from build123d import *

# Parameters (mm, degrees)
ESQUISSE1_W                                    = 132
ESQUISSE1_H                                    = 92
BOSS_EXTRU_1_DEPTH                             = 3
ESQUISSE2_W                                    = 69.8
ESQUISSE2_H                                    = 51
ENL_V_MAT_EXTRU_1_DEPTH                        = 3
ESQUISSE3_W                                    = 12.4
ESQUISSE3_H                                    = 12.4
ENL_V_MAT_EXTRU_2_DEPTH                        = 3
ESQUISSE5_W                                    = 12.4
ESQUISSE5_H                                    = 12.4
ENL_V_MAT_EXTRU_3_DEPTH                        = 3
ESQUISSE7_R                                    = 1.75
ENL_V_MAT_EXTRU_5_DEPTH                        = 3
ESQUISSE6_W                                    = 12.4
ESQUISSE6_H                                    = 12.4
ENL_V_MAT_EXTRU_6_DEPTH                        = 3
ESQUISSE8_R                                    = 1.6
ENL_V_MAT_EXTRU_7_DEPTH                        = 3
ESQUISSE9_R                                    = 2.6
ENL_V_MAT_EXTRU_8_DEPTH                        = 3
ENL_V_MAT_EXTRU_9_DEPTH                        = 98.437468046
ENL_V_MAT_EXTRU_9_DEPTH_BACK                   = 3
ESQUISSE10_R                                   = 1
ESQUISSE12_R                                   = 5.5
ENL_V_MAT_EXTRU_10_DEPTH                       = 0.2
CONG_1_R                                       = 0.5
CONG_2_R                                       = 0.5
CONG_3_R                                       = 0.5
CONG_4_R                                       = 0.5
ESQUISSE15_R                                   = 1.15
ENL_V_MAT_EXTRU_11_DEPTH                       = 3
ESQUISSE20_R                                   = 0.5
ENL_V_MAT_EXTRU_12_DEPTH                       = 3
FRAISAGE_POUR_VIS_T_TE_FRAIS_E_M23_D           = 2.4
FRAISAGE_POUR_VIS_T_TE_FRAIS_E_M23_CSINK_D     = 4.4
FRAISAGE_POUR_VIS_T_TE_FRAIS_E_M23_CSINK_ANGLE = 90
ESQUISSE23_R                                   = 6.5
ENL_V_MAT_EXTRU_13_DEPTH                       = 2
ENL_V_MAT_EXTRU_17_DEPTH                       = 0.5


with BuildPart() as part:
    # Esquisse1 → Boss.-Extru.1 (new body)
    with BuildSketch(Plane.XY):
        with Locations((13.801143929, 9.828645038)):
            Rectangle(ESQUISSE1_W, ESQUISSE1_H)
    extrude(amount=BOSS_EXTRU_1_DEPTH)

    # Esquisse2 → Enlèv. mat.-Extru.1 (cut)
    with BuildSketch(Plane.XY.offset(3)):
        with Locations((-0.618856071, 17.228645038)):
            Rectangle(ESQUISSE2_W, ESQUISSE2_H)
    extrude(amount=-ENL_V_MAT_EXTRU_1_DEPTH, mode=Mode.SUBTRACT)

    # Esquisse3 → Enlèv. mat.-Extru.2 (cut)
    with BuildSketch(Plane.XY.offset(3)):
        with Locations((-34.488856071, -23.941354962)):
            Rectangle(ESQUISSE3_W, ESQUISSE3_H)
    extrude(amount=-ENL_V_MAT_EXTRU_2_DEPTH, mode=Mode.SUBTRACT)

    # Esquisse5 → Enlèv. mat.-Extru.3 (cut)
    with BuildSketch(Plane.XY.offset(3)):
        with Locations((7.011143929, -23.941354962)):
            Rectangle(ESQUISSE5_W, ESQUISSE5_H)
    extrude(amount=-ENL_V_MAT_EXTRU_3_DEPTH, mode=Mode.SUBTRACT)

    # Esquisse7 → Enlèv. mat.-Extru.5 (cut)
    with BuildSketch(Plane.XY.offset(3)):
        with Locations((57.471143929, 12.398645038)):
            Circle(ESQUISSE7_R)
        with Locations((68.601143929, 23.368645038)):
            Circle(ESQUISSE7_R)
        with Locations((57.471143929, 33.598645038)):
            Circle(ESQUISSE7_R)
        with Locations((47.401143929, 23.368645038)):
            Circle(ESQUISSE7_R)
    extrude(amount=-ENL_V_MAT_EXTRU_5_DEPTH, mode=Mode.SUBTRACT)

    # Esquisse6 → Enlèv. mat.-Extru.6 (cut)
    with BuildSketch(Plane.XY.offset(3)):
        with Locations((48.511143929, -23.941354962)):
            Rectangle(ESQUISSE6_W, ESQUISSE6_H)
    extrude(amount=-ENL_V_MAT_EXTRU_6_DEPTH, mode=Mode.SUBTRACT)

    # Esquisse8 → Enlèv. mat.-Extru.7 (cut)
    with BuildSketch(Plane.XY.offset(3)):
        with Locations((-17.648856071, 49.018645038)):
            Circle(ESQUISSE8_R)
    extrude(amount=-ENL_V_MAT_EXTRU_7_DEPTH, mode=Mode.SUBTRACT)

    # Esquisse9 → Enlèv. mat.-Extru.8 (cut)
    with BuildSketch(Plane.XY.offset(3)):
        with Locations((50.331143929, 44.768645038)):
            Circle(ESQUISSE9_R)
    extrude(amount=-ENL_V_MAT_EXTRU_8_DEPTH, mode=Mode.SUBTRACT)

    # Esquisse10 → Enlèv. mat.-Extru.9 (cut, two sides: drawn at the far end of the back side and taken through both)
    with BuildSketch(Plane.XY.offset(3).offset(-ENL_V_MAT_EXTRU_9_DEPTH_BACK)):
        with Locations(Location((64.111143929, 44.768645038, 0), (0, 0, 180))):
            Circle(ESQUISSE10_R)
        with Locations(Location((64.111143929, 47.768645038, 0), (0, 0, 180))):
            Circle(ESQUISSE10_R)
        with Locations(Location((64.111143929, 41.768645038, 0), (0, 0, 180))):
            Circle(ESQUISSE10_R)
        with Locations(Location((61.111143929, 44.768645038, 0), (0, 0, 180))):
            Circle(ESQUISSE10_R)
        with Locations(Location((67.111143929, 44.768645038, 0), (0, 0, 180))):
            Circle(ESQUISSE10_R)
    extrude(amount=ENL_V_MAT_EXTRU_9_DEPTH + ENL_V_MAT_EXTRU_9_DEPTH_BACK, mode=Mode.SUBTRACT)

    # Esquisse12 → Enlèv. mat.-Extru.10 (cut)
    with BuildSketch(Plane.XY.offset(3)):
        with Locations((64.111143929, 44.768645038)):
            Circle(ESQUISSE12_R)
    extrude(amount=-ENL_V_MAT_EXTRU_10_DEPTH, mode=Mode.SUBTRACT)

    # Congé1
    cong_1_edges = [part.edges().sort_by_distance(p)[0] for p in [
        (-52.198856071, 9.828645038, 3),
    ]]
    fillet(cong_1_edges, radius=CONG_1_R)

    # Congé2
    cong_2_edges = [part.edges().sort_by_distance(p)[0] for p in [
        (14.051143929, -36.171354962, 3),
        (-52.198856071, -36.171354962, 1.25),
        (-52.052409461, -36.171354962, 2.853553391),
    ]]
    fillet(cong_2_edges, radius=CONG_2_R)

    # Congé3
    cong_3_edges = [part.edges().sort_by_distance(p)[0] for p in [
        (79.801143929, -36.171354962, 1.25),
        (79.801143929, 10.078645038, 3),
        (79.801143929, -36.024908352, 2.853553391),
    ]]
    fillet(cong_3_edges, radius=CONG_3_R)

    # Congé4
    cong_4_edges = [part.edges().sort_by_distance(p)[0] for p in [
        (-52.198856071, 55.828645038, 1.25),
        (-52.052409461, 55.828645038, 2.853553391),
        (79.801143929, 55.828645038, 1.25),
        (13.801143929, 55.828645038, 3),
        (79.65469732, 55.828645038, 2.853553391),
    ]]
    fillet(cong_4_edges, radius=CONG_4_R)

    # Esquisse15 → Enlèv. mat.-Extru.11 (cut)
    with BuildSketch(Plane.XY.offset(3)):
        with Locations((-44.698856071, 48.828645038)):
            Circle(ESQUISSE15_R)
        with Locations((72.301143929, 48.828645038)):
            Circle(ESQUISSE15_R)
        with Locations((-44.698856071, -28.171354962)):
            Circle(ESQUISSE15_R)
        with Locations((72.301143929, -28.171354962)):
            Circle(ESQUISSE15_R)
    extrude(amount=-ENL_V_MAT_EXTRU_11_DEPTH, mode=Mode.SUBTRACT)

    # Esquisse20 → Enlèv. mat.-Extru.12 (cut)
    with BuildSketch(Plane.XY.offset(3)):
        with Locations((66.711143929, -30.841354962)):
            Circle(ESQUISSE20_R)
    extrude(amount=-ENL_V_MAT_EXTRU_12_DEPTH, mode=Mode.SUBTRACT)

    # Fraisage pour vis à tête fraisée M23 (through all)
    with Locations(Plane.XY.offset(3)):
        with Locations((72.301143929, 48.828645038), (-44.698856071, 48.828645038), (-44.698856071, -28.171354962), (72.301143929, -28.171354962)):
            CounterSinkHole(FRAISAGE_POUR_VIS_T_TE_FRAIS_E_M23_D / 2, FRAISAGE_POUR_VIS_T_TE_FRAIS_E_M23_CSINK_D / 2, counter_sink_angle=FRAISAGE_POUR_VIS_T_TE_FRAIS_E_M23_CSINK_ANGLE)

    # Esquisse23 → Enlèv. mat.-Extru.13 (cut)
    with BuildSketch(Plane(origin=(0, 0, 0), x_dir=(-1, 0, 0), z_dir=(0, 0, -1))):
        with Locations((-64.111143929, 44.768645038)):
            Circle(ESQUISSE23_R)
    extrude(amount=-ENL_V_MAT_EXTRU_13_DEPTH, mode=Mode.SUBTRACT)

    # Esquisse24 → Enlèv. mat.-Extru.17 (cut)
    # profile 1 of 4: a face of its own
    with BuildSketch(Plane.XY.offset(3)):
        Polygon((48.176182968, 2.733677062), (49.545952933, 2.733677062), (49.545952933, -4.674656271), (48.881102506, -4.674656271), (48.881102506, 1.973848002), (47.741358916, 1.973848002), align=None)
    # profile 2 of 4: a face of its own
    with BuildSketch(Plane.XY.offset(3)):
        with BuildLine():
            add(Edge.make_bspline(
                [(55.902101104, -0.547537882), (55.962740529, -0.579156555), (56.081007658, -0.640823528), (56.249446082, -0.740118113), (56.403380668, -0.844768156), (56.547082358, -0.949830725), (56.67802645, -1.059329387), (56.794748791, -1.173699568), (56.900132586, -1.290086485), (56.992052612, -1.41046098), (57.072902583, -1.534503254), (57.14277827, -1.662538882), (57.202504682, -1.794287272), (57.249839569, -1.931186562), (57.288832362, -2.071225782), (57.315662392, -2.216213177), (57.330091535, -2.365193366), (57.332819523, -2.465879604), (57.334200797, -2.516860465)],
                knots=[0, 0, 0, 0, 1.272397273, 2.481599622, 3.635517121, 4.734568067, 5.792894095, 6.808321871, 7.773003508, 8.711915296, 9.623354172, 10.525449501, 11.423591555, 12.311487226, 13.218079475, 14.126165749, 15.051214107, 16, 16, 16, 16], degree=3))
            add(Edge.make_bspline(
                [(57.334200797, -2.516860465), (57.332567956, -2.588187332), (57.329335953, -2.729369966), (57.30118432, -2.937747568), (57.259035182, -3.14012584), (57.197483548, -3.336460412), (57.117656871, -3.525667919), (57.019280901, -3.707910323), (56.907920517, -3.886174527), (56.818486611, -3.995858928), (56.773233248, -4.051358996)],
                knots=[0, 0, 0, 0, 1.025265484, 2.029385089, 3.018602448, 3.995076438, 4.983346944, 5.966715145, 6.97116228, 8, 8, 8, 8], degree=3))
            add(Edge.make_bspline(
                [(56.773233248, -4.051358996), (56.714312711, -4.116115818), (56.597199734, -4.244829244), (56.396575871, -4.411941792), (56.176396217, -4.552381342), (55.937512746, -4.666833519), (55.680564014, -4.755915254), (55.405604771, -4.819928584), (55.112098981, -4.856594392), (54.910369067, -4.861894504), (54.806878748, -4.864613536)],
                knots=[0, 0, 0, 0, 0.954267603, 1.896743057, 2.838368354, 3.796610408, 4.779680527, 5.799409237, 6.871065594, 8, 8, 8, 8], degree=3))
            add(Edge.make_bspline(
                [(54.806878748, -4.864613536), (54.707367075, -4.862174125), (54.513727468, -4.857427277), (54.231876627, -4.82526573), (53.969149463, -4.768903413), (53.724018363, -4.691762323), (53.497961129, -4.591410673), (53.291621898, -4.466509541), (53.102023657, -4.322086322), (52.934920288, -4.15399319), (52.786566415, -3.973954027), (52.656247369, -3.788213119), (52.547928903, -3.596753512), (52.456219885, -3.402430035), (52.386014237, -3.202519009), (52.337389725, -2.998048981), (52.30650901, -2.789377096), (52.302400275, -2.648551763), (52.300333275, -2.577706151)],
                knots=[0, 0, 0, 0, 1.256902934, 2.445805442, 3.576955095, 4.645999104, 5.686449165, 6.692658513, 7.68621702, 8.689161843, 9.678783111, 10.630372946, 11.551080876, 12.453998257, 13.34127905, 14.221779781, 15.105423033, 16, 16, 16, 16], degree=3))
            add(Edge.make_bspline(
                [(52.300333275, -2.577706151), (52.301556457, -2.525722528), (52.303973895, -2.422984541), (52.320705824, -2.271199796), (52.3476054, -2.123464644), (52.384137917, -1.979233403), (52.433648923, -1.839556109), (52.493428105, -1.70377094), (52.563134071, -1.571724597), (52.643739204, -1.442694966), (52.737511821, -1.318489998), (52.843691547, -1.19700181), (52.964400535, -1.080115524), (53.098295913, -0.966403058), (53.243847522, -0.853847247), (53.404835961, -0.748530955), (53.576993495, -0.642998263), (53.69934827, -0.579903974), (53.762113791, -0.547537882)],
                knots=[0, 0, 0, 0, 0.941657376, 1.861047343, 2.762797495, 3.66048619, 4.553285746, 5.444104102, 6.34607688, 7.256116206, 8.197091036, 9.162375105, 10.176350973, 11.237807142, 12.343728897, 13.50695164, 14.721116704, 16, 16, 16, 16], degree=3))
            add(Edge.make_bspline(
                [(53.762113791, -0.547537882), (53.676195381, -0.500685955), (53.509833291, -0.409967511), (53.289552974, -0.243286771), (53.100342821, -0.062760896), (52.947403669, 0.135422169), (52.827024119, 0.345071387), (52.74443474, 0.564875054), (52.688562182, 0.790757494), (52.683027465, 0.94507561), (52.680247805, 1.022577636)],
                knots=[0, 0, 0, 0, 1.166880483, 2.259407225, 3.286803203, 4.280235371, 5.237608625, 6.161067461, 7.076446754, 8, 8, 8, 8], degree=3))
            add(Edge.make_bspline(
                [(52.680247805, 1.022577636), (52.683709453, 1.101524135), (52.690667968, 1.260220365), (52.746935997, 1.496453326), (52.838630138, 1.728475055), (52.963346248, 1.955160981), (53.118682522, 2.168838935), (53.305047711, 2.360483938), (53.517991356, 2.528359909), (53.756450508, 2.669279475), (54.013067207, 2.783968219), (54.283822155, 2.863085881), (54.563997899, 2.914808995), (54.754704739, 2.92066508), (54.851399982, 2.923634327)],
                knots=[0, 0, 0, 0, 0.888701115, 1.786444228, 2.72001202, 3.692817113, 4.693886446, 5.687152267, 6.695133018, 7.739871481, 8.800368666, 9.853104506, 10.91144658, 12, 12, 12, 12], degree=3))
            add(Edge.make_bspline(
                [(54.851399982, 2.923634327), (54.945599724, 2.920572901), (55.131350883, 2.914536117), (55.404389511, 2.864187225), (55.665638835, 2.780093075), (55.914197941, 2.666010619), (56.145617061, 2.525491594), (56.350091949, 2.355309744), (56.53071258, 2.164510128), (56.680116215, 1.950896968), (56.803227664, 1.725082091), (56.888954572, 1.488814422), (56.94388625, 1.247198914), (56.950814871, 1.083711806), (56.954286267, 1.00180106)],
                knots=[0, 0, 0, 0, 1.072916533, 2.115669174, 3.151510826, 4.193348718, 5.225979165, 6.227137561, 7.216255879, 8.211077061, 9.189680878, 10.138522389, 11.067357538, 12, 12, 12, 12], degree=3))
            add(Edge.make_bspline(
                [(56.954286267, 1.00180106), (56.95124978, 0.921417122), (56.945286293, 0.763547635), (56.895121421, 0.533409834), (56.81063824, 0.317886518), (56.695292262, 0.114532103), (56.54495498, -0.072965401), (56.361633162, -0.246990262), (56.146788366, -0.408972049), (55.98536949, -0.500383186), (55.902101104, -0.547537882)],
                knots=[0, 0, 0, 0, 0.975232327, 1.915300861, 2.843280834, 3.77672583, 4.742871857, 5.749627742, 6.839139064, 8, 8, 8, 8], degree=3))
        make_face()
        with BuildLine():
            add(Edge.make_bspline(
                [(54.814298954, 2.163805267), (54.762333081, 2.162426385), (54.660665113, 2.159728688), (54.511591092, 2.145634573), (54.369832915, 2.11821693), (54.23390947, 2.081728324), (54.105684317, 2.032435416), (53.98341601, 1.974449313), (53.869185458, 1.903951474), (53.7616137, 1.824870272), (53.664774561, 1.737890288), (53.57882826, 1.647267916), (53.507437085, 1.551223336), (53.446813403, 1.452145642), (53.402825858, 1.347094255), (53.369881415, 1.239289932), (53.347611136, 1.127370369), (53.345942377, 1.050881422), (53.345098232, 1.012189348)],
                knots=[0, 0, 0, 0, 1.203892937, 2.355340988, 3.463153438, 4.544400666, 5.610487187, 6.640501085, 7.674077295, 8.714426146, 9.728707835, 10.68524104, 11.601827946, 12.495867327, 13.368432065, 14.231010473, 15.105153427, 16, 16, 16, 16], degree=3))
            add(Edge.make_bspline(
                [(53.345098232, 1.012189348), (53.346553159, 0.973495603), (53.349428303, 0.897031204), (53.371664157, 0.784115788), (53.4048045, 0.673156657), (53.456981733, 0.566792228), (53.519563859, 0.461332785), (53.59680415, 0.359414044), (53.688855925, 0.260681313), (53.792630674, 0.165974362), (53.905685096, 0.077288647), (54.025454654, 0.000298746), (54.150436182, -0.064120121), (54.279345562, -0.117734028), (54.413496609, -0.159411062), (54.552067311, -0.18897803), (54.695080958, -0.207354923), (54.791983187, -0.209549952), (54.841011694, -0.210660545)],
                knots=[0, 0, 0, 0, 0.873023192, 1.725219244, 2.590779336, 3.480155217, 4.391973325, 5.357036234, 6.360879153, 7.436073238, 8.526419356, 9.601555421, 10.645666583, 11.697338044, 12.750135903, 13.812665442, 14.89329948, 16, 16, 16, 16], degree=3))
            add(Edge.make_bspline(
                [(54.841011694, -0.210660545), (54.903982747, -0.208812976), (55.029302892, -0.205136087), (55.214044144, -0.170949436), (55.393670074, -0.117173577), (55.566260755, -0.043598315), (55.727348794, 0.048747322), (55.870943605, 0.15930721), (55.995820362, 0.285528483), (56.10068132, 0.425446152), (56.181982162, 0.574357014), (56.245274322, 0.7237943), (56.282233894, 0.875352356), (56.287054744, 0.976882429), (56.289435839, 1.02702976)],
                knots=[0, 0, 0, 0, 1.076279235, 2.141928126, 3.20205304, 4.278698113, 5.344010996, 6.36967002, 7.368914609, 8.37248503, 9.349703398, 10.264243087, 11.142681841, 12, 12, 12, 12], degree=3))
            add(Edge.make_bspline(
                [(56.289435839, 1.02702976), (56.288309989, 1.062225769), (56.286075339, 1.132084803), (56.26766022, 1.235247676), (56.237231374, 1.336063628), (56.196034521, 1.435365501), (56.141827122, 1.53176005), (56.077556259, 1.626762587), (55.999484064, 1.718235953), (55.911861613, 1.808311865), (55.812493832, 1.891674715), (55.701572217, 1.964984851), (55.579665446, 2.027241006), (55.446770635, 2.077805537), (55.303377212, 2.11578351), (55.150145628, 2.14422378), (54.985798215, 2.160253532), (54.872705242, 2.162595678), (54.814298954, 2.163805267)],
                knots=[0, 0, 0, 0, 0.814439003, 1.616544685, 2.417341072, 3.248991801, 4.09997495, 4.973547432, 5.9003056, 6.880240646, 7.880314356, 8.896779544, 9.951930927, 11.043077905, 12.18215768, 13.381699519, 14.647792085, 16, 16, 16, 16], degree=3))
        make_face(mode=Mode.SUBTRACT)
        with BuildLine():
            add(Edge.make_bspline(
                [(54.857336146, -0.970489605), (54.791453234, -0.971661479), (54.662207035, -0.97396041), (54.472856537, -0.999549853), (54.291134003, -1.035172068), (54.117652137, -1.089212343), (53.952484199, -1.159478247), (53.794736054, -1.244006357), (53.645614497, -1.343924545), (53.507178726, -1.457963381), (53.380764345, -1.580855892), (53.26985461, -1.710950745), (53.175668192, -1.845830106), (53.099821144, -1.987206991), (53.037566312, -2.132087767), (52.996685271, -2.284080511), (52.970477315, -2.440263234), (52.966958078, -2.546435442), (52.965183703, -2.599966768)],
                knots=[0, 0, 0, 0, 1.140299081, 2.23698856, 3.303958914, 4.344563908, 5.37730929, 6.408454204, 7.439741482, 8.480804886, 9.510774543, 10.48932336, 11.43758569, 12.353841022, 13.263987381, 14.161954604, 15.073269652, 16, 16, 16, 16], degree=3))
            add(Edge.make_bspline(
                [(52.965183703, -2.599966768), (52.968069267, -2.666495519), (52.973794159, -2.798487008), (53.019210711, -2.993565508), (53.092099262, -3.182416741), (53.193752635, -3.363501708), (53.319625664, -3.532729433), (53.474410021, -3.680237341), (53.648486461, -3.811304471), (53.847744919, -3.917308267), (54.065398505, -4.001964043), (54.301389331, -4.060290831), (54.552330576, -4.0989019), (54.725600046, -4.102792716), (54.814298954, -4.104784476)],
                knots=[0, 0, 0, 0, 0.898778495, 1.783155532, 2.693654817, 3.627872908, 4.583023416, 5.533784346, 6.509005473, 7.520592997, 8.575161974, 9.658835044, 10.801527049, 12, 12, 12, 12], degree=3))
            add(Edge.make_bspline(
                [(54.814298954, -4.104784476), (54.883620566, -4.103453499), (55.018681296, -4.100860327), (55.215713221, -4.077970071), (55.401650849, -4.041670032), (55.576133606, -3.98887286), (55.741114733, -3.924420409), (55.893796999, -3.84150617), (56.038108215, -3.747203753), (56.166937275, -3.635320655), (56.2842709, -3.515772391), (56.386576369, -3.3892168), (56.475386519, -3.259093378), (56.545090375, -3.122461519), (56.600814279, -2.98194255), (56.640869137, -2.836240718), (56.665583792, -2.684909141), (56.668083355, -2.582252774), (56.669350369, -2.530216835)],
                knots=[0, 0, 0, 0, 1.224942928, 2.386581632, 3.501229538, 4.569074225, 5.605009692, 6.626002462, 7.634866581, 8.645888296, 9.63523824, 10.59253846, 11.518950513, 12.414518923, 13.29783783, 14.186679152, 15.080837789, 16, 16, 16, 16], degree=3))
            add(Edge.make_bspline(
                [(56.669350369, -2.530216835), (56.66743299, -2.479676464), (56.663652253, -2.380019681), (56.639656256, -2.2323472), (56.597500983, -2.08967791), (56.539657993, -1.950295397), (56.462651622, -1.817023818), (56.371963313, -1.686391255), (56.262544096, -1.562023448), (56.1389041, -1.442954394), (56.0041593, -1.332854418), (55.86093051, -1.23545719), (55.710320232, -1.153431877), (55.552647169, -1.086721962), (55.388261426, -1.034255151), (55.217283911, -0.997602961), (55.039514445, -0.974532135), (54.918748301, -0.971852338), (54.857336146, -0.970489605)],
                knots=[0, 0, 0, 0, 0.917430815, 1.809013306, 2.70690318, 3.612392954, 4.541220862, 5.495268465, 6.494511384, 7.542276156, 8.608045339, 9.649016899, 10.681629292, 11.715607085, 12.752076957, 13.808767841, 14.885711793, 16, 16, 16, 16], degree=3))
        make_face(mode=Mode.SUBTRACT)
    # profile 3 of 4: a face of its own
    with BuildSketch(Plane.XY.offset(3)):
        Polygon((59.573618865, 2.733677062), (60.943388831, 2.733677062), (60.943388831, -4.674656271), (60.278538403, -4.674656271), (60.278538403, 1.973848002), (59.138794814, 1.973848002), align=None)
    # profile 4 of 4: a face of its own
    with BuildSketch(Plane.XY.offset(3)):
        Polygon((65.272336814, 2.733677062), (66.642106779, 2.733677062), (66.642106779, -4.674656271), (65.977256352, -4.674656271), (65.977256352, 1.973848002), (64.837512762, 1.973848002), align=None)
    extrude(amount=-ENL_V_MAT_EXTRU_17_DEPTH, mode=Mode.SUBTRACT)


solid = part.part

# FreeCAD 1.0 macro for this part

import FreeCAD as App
import Part
import Sketcher

V = App.Vector


def edges_at(feature, points):
    """Names of the edges that pass closest to the given points."""
    edges = feature.Shape.Edges
    near = lambda p: min(range(len(edges)), key=lambda i: edges[i].distToShape(Part.Vertex(*p))[0])
    return sorted({f"Edge{near(p) + 1}" for p in points})


def add_polygon(sketch, points):
    """Adds a closed chain of lines whose ends are joined by coincident constraints."""
    first, n = sketch.GeometryCount, len(points)
    for a, b in zip(points, points[1:] + points[:1]):
        sketch.addGeometry(Part.LineSegment(App.Vector(*a, 0), App.Vector(*b, 0)), False)
    for i in range(n):
        sketch.addConstraint(Sketcher.Constraint("Coincident", first + i, 2, first + (i + 1) % n, 1))

doc = App.newDocument("Part")
params = doc.addObject("Spreadsheet::Sheet", "Params")
for row, (alias, value) in enumerate([
    ("sketch1_width", "132 mm"),
    ("sketch1_height", "92 mm"),
    ("pad1_length", "3 mm"),
    ("sketch2_height", "51 mm"),
    ("sketch2_width", "69.8 mm"),
    ("pocket1_length", "3 mm"),
    ("sketch3_width", "12.4 mm"),
    ("pocket2_length", "3 mm"),
    ("sketch4_width", "12.4 mm"),
    ("pocket3_length", "3 mm"),
    ("sketch5_diameter", "3.5 mm"),
    ("pocket4_length", "3 mm"),
    ("sketch6_width", "12.4 mm"),
    ("pocket5_length", "3 mm"),
    ("sketch7_diameter", "3.2 mm"),
    ("pocket6_length", "3 mm"),
    ("sketch8_diameter", "5.2 mm"),
    ("pocket7_length", "3 mm"),
    ("sketch9_diameter", "2 mm"),
    ("sketch10_diameter", "11 mm"),
    ("pocket9_length", "0.2 mm"),
    ("fillet_radius", "0.5 mm"),
    ("fillet2_radius", "0.5 mm"),
    ("fillet3_radius", "0.5 mm"),
    ("fillet4_radius", "0.5 mm"),
    ("sketch11_diameter", "2.3 mm"),
    ("pocket10_length", "3 mm"),
    ("sketch12_diameter", "1 mm"),
    ("pocket11_length", "3 mm"),
    ("sketch13_diameter", "2.4 mm"),
    ("hole_diameter", "2.4 mm"),
    ("hole_csink_diameter", "4.4 mm"),
    ("sketch14_diameter", "13 mm"),
    ("pocket12_length", "2 mm"),
    ("pocket13_length", "0.5 mm"),
], start=1):
    params.set(f"A{row}", alias)
    params.set(f"B{row}", "=" + value)
    params.setAlias(f"B{row}", alias)

body = doc.addObject("PartDesign::Body", "Body")

sketch1 = body.newObject("Sketcher::SketchObject", "Sketch")
sketch1.AttachmentSupport = (doc.getObject("XY_Plane"), [""])
sketch1.MapMode = "FlatFace"
add_polygon(sketch1, [(-52, 56), (-52, -36), (80, -36), (80, 56)])
sketch1.addConstraint(Sketcher.Constraint("Vertical", 0))
sketch1.addConstraint(Sketcher.Constraint("Horizontal", 1))
sketch1.addConstraint(Sketcher.Constraint("Vertical", 2))
sketch1.addConstraint(Sketcher.Constraint("Horizontal", 3))
sketch1.addConstraint(Sketcher.Constraint("DistanceX", 1, 1, 1, 2, 132.0))
sketch1.addConstraint(Sketcher.Constraint("DistanceY", 0, 2, 0, 1, 92.0))
sketch1.addConstraint(Sketcher.Constraint("DistanceX", 0, 2, -1, 1, 52.198856))
sketch1.addConstraint(Sketcher.Constraint("DistanceY", 0, 2, -1, 1, 36.171355))
sketch1.setExpression("Constraints[8]", "Params.sketch1_width")
sketch1.setExpression("Constraints[9]", "Params.sketch1_height")
pad1 = body.newObject("PartDesign::Pad", "Pad")
pad1.Profile = sketch1
pad1.setExpression("Length", "Params.pad1_length")

sketch2 = body.newObject("Sketcher::SketchObject", "Sketch001")
sketch2.AttachmentSupport = (doc.getObject("XY_Plane"), [""])
sketch2.MapMode = "FlatFace"
sketch2.AttachmentOffset = App.Placement(V(0, 0, 3), App.Rotation())
add_polygon(sketch2, [(-36, 43), (-36, -8), (34, -8), (34, 43)])
sketch2.addConstraint(Sketcher.Constraint("Vertical", 0))
sketch2.addConstraint(Sketcher.Constraint("Horizontal", 1))
sketch2.addConstraint(Sketcher.Constraint("Vertical", 2))
sketch2.addConstraint(Sketcher.Constraint("Horizontal", 3))
sketch2.addConstraint(Sketcher.Constraint("DistanceY", 0, 2, 0, 1, 51.0))
sketch2.addConstraint(Sketcher.Constraint("DistanceX", 1, 1, 1, 2, 69.8))
sketch2.addConstraint(Sketcher.Constraint("DistanceX", 0, 2, -1, 1, 35.518856))
sketch2.addConstraint(Sketcher.Constraint("DistanceY", 0, 2, -1, 1, 8.271355))
sketch2.setExpression("Constraints[8]", "Params.sketch2_height")
sketch2.setExpression("Constraints[9]", "Params.sketch2_width")
pocket1 = body.newObject("PartDesign::Pocket", "Pocket")
pocket1.Profile = sketch2
pocket1.setExpression("Length", "Params.pocket1_length")

sketch3 = body.newObject("Sketcher::SketchObject", "Sketch002")
sketch3.AttachmentSupport = (doc.getObject("XY_Plane"), [""])
sketch3.MapMode = "FlatFace"
sketch3.AttachmentOffset = App.Placement(V(0, 0, 3), App.Rotation())
add_polygon(sketch3, [(-41, -18), (-41, -30), (-28, -30), (-28, -18)])
sketch3.addConstraint(Sketcher.Constraint("Vertical", 0))
sketch3.addConstraint(Sketcher.Constraint("Horizontal", 1))
sketch3.addConstraint(Sketcher.Constraint("Vertical", 2))
sketch3.addConstraint(Sketcher.Constraint("Horizontal", 3))
sketch3.addConstraint(Sketcher.Constraint("Equal", 3, 0))
sketch3.addConstraint(Sketcher.Constraint("DistanceX", 1, 1, 1, 2, 12.4))
sketch3.addConstraint(Sketcher.Constraint("DistanceX", 0, 2, -1, 1, 40.688856))
sketch3.addConstraint(Sketcher.Constraint("DistanceY", 0, 2, -1, 1, 30.141355))
sketch3.setExpression("Constraints[9]", "Params.sketch3_width")
pocket2 = body.newObject("PartDesign::Pocket", "Pocket001")
pocket2.Profile = sketch3
pocket2.setExpression("Length", "Params.pocket2_length")

sketch4 = body.newObject("Sketcher::SketchObject", "Sketch003")
sketch4.AttachmentSupport = (doc.getObject("XY_Plane"), [""])
sketch4.MapMode = "FlatFace"
sketch4.AttachmentOffset = App.Placement(V(0, 0, 3), App.Rotation())
add_polygon(sketch4, [(1, -18), (1, -30), (13, -30), (13, -18)])
sketch4.addConstraint(Sketcher.Constraint("Vertical", 0))
sketch4.addConstraint(Sketcher.Constraint("Horizontal", 1))
sketch4.addConstraint(Sketcher.Constraint("Vertical", 2))
sketch4.addConstraint(Sketcher.Constraint("Horizontal", 3))
sketch4.addConstraint(Sketcher.Constraint("Equal", 3, 0))
sketch4.addConstraint(Sketcher.Constraint("DistanceX", 1, 1, 1, 2, 12.4))
sketch4.addConstraint(Sketcher.Constraint("DistanceX", -1, 1, 0, 2, 0.811144))
sketch4.addConstraint(Sketcher.Constraint("DistanceY", 0, 2, -1, 1, 30.141355))
sketch4.setExpression("Constraints[9]", "Params.sketch4_width")
pocket3 = body.newObject("PartDesign::Pocket", "Pocket002")
pocket3.Profile = sketch4
pocket3.setExpression("Length", "Params.pocket3_length")

sketch5 = body.newObject("Sketcher::SketchObject", "Sketch004")
sketch5.AttachmentSupport = (doc.getObject("XY_Plane"), [""])
sketch5.MapMode = "FlatFace"
sketch5.AttachmentOffset = App.Placement(V(0, 0, 3), App.Rotation())
sketch5.addGeometry(Part.Circle(V(57.5, 12.4, 0), V(0, 0, 1), 1.8), False)
sketch5.addGeometry(Part.Circle(V(68.6, 23.4, 0), V(0, 0, 1), 1.8), False)
sketch5.addGeometry(Part.Circle(V(57.5, 33.6, 0), V(0, 0, 1), 1.8), False)
sketch5.addGeometry(Part.Circle(V(47.4, 23.4, 0), V(0, 0, 1), 1.8), False)
sketch5.addConstraint(Sketcher.Constraint("Equal", 0, 1))
sketch5.addConstraint(Sketcher.Constraint("Equal", 1, 2))
sketch5.addConstraint(Sketcher.Constraint("Equal", 2, 3))
sketch5.addConstraint(Sketcher.Constraint("Horizontal", 1, 3, 3, 3))
sketch5.addConstraint(Sketcher.Constraint("Vertical", 0, 3, 2, 3))
sketch5.addConstraint(Sketcher.Constraint("Diameter", 0, 3.5))
sketch5.addConstraint(Sketcher.Constraint("DistanceY", 0, 3, 2, 3, 21.2))
sketch5.addConstraint(Sketcher.Constraint("DistanceX", 3, 3, 1, 3, 21.2))
sketch5.addConstraint(Sketcher.Constraint("DistanceX", 0, 3, 1, 3, 11.13))
sketch5.addConstraint(Sketcher.Constraint("DistanceY", 0, 3, 1, 3, 10.97))
sketch5.addConstraint(Sketcher.Constraint("DistanceX", -1, 1, 0, 3, 57.471144))
sketch5.addConstraint(Sketcher.Constraint("DistanceY", -1, 1, 0, 3, 12.398645))
sketch5.setExpression("Constraints[5]", "Params.sketch5_diameter")
pocket4 = body.newObject("PartDesign::Pocket", "Pocket003")
pocket4.Profile = sketch5
pocket4.setExpression("Length", "Params.pocket4_length")

sketch6 = body.newObject("Sketcher::SketchObject", "Sketch005")
sketch6.AttachmentSupport = (doc.getObject("XY_Plane"), [""])
sketch6.MapMode = "FlatFace"
sketch6.AttachmentOffset = App.Placement(V(0, 0, 3), App.Rotation())
add_polygon(sketch6, [(42, -18), (42, -30), (55, -30), (55, -18)])
sketch6.addConstraint(Sketcher.Constraint("Vertical", 0))
sketch6.addConstraint(Sketcher.Constraint("Horizontal", 1))
sketch6.addConstraint(Sketcher.Constraint("Vertical", 2))
sketch6.addConstraint(Sketcher.Constraint("Horizontal", 3))
sketch6.addConstraint(Sketcher.Constraint("Equal", 3, 0))
sketch6.addConstraint(Sketcher.Constraint("DistanceX", 1, 1, 1, 2, 12.4))
sketch6.addConstraint(Sketcher.Constraint("DistanceX", -1, 1, 0, 2, 42.311144))
sketch6.addConstraint(Sketcher.Constraint("DistanceY", 0, 2, -1, 1, 30.141355))
sketch6.setExpression("Constraints[9]", "Params.sketch6_width")
pocket5 = body.newObject("PartDesign::Pocket", "Pocket004")
pocket5.Profile = sketch6
pocket5.setExpression("Length", "Params.pocket5_length")

sketch7 = body.newObject("Sketcher::SketchObject", "Sketch006")
sketch7.AttachmentSupport = (doc.getObject("XY_Plane"), [""])
sketch7.MapMode = "FlatFace"
sketch7.AttachmentOffset = App.Placement(V(0, 0, 3), App.Rotation())
sketch7.addGeometry(Part.Circle(V(-17.6, 49, 0), V(0, 0, 1), 1.6), False)
sketch7.addConstraint(Sketcher.Constraint("Diameter", 0, 3.2))
sketch7.addConstraint(Sketcher.Constraint("DistanceX", 0, 3, -1, 1, 17.648856))
sketch7.addConstraint(Sketcher.Constraint("DistanceY", -1, 1, 0, 3, 49.018645))
sketch7.setExpression("Constraints[0]", "Params.sketch7_diameter")
pocket6 = body.newObject("PartDesign::Pocket", "Pocket005")
pocket6.Profile = sketch7
pocket6.setExpression("Length", "Params.pocket6_length")

sketch8 = body.newObject("Sketcher::SketchObject", "Sketch007")
sketch8.AttachmentSupport = (doc.getObject("XY_Plane"), [""])
sketch8.MapMode = "FlatFace"
sketch8.AttachmentOffset = App.Placement(V(0, 0, 3), App.Rotation())
sketch8.addGeometry(Part.Circle(V(50.3, 44.8, 0), V(0, 0, 1), 2.6), False)
sketch8.addConstraint(Sketcher.Constraint("Diameter", 0, 5.2))
sketch8.addConstraint(Sketcher.Constraint("DistanceX", -1, 1, 0, 3, 50.331144))
sketch8.addConstraint(Sketcher.Constraint("DistanceY", -1, 1, 0, 3, 44.768645))
sketch8.setExpression("Constraints[0]", "Params.sketch8_diameter")
pocket7 = body.newObject("PartDesign::Pocket", "Pocket006")
pocket7.Profile = sketch8
pocket7.setExpression("Length", "Params.pocket7_length")

sketch9 = body.newObject("Sketcher::SketchObject", "Sketch008")
sketch9.AttachmentSupport = (doc.getObject("XY_Plane"), [""])
sketch9.MapMode = "FlatFace"
sketch9.AttachmentOffset = App.Placement(V(0, 0, 3), App.Rotation())
sketch9.addGeometry(Part.Circle(V(64.1, 44.8, 0), V(0, 0, 1), 1), False)
sketch9.addGeometry(Part.Circle(V(64.1, 47.8, 0), V(0, 0, 1), 1), False)
sketch9.addGeometry(Part.Circle(V(64.1, 41.8, 0), V(0, 0, 1), 1), False)
sketch9.addGeometry(Part.Circle(V(61.1, 44.8, 0), V(0, 0, 1), 1), False)
sketch9.addGeometry(Part.Circle(V(67.1, 44.8, 0), V(0, 0, 1), 1), False)
sketch9.addConstraint(Sketcher.Constraint("Equal", 0, 1))
sketch9.addConstraint(Sketcher.Constraint("Equal", 1, 2))
sketch9.addConstraint(Sketcher.Constraint("Equal", 2, 3))
sketch9.addConstraint(Sketcher.Constraint("Equal", 3, 4))
sketch9.addConstraint(Sketcher.Constraint("Horizontal", 0, 3, 3, 3))
sketch9.addConstraint(Sketcher.Constraint("Horizontal", 3, 3, 4, 3))
sketch9.addConstraint(Sketcher.Constraint("Vertical", 0, 3, 1, 3))
sketch9.addConstraint(Sketcher.Constraint("Vertical", 1, 3, 2, 3))
sketch9.addConstraint(Sketcher.Constraint("Diameter", 0, 2.0))
sketch9.addConstraint(Sketcher.Constraint("DistanceY", 0, 3, 1, 3, 3.0))
sketch9.addConstraint(Sketcher.Constraint("DistanceY", 2, 3, 0, 3, 3.0))
sketch9.addConstraint(Sketcher.Constraint("DistanceX", 3, 3, 0, 3, 3.0))
sketch9.addConstraint(Sketcher.Constraint("DistanceX", 0, 3, 4, 3, 3.0))
sketch9.addConstraint(Sketcher.Constraint("DistanceX", -1, 1, 0, 3, 64.111144))
sketch9.addConstraint(Sketcher.Constraint("DistanceY", -1, 1, 0, 3, 44.768645))
sketch9.setExpression("Constraints[8]", "Params.sketch9_diameter")
pocket8 = body.newObject("PartDesign::Pocket", "Pocket007")
pocket8.Profile = sketch9
pocket8.Type = "ThroughAll"
pocket8.Midplane = True

sketch10 = body.newObject("Sketcher::SketchObject", "Sketch009")
sketch10.AttachmentSupport = (doc.getObject("XY_Plane"), [""])
sketch10.MapMode = "FlatFace"
sketch10.AttachmentOffset = App.Placement(V(0, 0, 3), App.Rotation())
sketch10.addGeometry(Part.Circle(V(64, 45, 0), V(0, 0, 1), 6), False)
sketch10.addConstraint(Sketcher.Constraint("Diameter", 0, 11.0))
sketch10.addConstraint(Sketcher.Constraint("DistanceX", -1, 1, 0, 3, 64.111144))
sketch10.addConstraint(Sketcher.Constraint("DistanceY", -1, 1, 0, 3, 44.768645))
sketch10.setExpression("Constraints[0]", "Params.sketch10_diameter")
pocket9 = body.newObject("PartDesign::Pocket", "Pocket008")
pocket9.Profile = sketch10
pocket9.setExpression("Length", "Params.pocket9_length")
doc.recompute()

fillet = body.newObject("PartDesign::Fillet", "Fillet")
fillet.Base = (pocket9, edges_at(pocket9, [(-52.199, 9.829, 3)]))
fillet.setExpression("Radius", "Params.fillet_radius")
doc.recompute()

fillet2 = body.newObject("PartDesign::Fillet", "Fillet001")
fillet2.Base = (fillet, edges_at(fillet, [(14.051, -36.171, 3), (-52.199, -36.171, 1.25), (-52.052, -36.171, 2.854)]))
fillet2.setExpression("Radius", "Params.fillet2_radius")
doc.recompute()

fillet3 = body.newObject("PartDesign::Fillet", "Fillet002")
fillet3.Base = (fillet2, edges_at(fillet2, [(79.801, -36.171, 1.25), (79.801, 10.079, 3), (79.801, -36.025, 2.854)]))
fillet3.setExpression("Radius", "Params.fillet3_radius")
doc.recompute()

fillet4 = body.newObject("PartDesign::Fillet", "Fillet003")
fillet4.Base = (fillet3, edges_at(fillet3, [
    (-52.199, 55.829, 1.25),
    (-52.052, 55.829, 2.854),
    (79.801, 55.829, 1.25),
    (13.801, 55.829, 3),
    (79.655, 55.829, 2.854),
]))
fillet4.setExpression("Radius", "Params.fillet4_radius")

sketch11 = body.newObject("Sketcher::SketchObject", "Sketch010")
sketch11.AttachmentSupport = (doc.getObject("XY_Plane"), [""])
sketch11.MapMode = "FlatFace"
sketch11.AttachmentOffset = App.Placement(V(0, 0, 3), App.Rotation())
sketch11.addGeometry(Part.Circle(V(-44.7, 48.8, 0), V(0, 0, 1), 1.1), False)
sketch11.addGeometry(Part.Circle(V(72.3, 48.8, 0), V(0, 0, 1), 1.1), False)
sketch11.addGeometry(Part.Circle(V(-44.7, -28.2, 0), V(0, 0, 1), 1.1), False)
sketch11.addGeometry(Part.Circle(V(72.3, -28.2, 0), V(0, 0, 1), 1.1), False)
sketch11.addConstraint(Sketcher.Constraint("Equal", 0, 1))
sketch11.addConstraint(Sketcher.Constraint("Equal", 1, 2))
sketch11.addConstraint(Sketcher.Constraint("Equal", 2, 3))
sketch11.addConstraint(Sketcher.Constraint("Horizontal", 0, 3, 1, 3))
sketch11.addConstraint(Sketcher.Constraint("Horizontal", 2, 3, 3, 3))
sketch11.addConstraint(Sketcher.Constraint("Vertical", 0, 3, 2, 3))
sketch11.addConstraint(Sketcher.Constraint("Vertical", 1, 3, 3, 3))
sketch11.addConstraint(Sketcher.Constraint("Diameter", 0, 2.3))
sketch11.addConstraint(Sketcher.Constraint("DistanceX", 0, 3, 1, 3, 117.0))
sketch11.addConstraint(Sketcher.Constraint("DistanceY", 2, 3, 0, 3, 77.0))
sketch11.addConstraint(Sketcher.Constraint("DistanceX", 0, 3, -1, 1, 44.698856))
sketch11.addConstraint(Sketcher.Constraint("DistanceY", -1, 1, 0, 3, 48.828645))
sketch11.setExpression("Constraints[7]", "Params.sketch11_diameter")
pocket10 = body.newObject("PartDesign::Pocket", "Pocket009")
pocket10.Profile = sketch11
pocket10.setExpression("Length", "Params.pocket10_length")

sketch12 = body.newObject("Sketcher::SketchObject", "Sketch011")
sketch12.AttachmentSupport = (doc.getObject("XY_Plane"), [""])
sketch12.MapMode = "FlatFace"
sketch12.AttachmentOffset = App.Placement(V(0, 0, 3), App.Rotation())
sketch12.addGeometry(Part.Circle(V(66.7, -30.8, 0), V(0, 0, 1), 0.5), False)
sketch12.addConstraint(Sketcher.Constraint("Diameter", 0, 1.0))
sketch12.addConstraint(Sketcher.Constraint("DistanceX", -1, 1, 0, 3, 66.711144))
sketch12.addConstraint(Sketcher.Constraint("DistanceY", 0, 3, -1, 1, 30.841355))
sketch12.setExpression("Constraints[0]", "Params.sketch12_diameter")
pocket11 = body.newObject("PartDesign::Pocket", "Pocket010")
pocket11.Profile = sketch12
pocket11.setExpression("Length", "Params.pocket11_length")

sketch13 = body.newObject("Sketcher::SketchObject", "Sketch012")
sketch13.AttachmentSupport = (doc.getObject("XY_Plane"), [""])
sketch13.MapMode = "FlatFace"
sketch13.AttachmentOffset = App.Placement(V(0, 0, 3), App.Rotation())
sketch13.addGeometry(Part.Circle(V(72.3, 48.8, 0), V(0, 0, 1), 1.2), False)
sketch13.addGeometry(Part.Circle(V(-44.7, 48.8, 0), V(0, 0, 1), 1.2), False)
sketch13.addGeometry(Part.Circle(V(-44.7, -28.2, 0), V(0, 0, 1), 1.2), False)
sketch13.addGeometry(Part.Circle(V(72.3, -28.2, 0), V(0, 0, 1), 1.2), False)
sketch13.addConstraint(Sketcher.Constraint("Equal", 0, 1))
sketch13.addConstraint(Sketcher.Constraint("Equal", 1, 2))
sketch13.addConstraint(Sketcher.Constraint("Equal", 2, 3))
sketch13.addConstraint(Sketcher.Constraint("Horizontal", 0, 3, 1, 3))
sketch13.addConstraint(Sketcher.Constraint("Horizontal", 2, 3, 3, 3))
sketch13.addConstraint(Sketcher.Constraint("Vertical", 1, 3, 2, 3))
sketch13.addConstraint(Sketcher.Constraint("Vertical", 0, 3, 3, 3))
sketch13.addConstraint(Sketcher.Constraint("Diameter", 0, 2.4))
sketch13.addConstraint(Sketcher.Constraint("DistanceX", 1, 3, 0, 3, 117.0))
sketch13.addConstraint(Sketcher.Constraint("DistanceY", 2, 3, 1, 3, 77.0))
sketch13.addConstraint(Sketcher.Constraint("DistanceX", -1, 1, 0, 3, 72.301144))
sketch13.addConstraint(Sketcher.Constraint("DistanceY", -1, 1, 0, 3, 48.828645))
sketch13.setExpression("Constraints[7]", "Params.sketch13_diameter")
doc.recompute()
hole = body.newObject("PartDesign::Hole", "Hole")
hole.Profile = sketch13
hole.ThreadType = "None"
hole.setExpression("Diameter", "Params.hole_diameter")
hole.DepthType = "ThroughAll"
hole.HoleCutType = "Countersink"
hole.setExpression("HoleCutDiameter", "Params.hole_csink_diameter")
hole.HoleCutCountersinkAngle = 90

sketch14 = body.newObject("Sketcher::SketchObject", "Sketch013")
sketch14.AttachmentSupport = (doc.getObject("XY_Plane"), [""])
sketch14.MapMode = "FlatFace"
sketch14.addGeometry(Part.Circle(V(64, 45, 0), V(0, 0, 1), 6), False)
sketch14.addConstraint(Sketcher.Constraint("Diameter", 0, 13.0))
sketch14.addConstraint(Sketcher.Constraint("DistanceX", -1, 1, 0, 3, 64.111144))
sketch14.addConstraint(Sketcher.Constraint("DistanceY", -1, 1, 0, 3, 44.768645))
sketch14.setExpression("Constraints[0]", "Params.sketch14_diameter")
pocket12 = body.newObject("PartDesign::Pocket", "Pocket011")
pocket12.Profile = sketch14
pocket12.setExpression("Length", "Params.pocket12_length")
pocket12.Reversed = True

sketch15 = body.newObject("Sketcher::SketchObject", "Sketch014")
sketch15.AttachmentSupport = (doc.getObject("XY_Plane"), [""])
sketch15.MapMode = "FlatFace"
sketch15.AttachmentOffset = App.Placement(V(0, 0, 3), App.Rotation())
add_polygon(sketch15, [(49.545953, 2.733677), (48.176183, 2.733677), (47.741359, 1.973848), (48.881103, 1.973848), (48.881103, -4.674656), (49.545953, -4.674656)])
sketch15.addGeometry(Part.BSplineCurve([V(55.902101, -0.547538, 0), V(55.962741, -0.579157, 0), V(56.081008, -0.640824, 0), V(56.249446, -0.740118, 0), V(56.403381, -0.844768, 0), V(56.547082, -0.949831, 0), V(56.678026, -1.059329, 0), V(56.794749, -1.1737, 0), V(56.900133, -1.290086, 0), V(56.992053, -1.410461, 0), V(57.072903, -1.534503, 0), V(57.142778, -1.662539, 0), V(57.202505, -1.794287, 0), V(57.24984, -1.931187, 0), V(57.288832, -2.071226, 0), V(57.315662, -2.216213, 0), V(57.330092, -2.365193, 0), V(57.33282, -2.46588, 0), V(57.334201, -2.51686, 0)], [4, 1, 1, 1, 1, 1, 1, 1, 1, 1, 1, 1, 1, 1, 1, 1, 4], [0, 1.272397273, 2.481599622, 3.635517121, 4.734568067, 5.792894095, 6.808321871, 7.773003508, 8.711915296, 9.623354172, 10.525449501, 11.423591555, 12.311487226, 13.218079475, 14.126165749, 15.051214107, 16], False, 3, [1, 1, 1, 1, 1, 1, 1, 1, 1, 1, 1, 1, 1, 1, 1, 1, 1, 1, 1], False), False)
sketch15.addGeometry(Part.BSplineCurve([V(56.954286, 1.001801, 0), V(56.95125, 0.921417, 0), V(56.945286, 0.763548, 0), V(56.895121, 0.53341, 0), V(56.810638, 0.317887, 0), V(56.695292, 0.114532, 0), V(56.544955, -0.072965, 0), V(56.361633, -0.24699, 0), V(56.146788, -0.408972, 0), V(55.985369, -0.500383, 0), V(55.902101, -0.547538, 0)], [4, 1, 1, 1, 1, 1, 1, 1, 4], [0, 0.975232327, 1.915300861, 2.843280834, 3.77672583, 4.742871857, 5.749627742, 6.839139064, 8], False, 3, [1, 1, 1, 1, 1, 1, 1, 1, 1, 1, 1], False), False)
sketch15.addGeometry(Part.BSplineCurve([V(54.8514, 2.923634, 0), V(54.9456, 2.920573, 0), V(55.131351, 2.914536, 0), V(55.40439, 2.864187, 0), V(55.665639, 2.780093, 0), V(55.914198, 2.666011, 0), V(56.145617, 2.525492, 0), V(56.350092, 2.35531, 0), V(56.530713, 2.16451, 0), V(56.680116, 1.950897, 0), V(56.803228, 1.725082, 0), V(56.888955, 1.488814, 0), V(56.943886, 1.247199, 0), V(56.950815, 1.083712, 0), V(56.954286, 1.001801, 0)], [4, 1, 1, 1, 1, 1, 1, 1, 1, 1, 1, 1, 4], [0, 1.072916533, 2.115669174, 3.151510826, 4.193348718, 5.225979165, 6.227137561, 7.216255879, 8.211077061, 9.189680878, 10.138522389, 11.067357538, 12], False, 3, [1, 1, 1, 1, 1, 1, 1, 1, 1, 1, 1, 1, 1, 1, 1], False), False)
sketch15.addGeometry(Part.BSplineCurve([V(52.680248, 1.022578, 0), V(52.683709, 1.101524, 0), V(52.690668, 1.26022, 0), V(52.746936, 1.496453, 0), V(52.83863, 1.728475, 0), V(52.963346, 1.955161, 0), V(53.118683, 2.168839, 0), V(53.305048, 2.360484, 0), V(53.517991, 2.52836, 0), V(53.756451, 2.669279, 0), V(54.013067, 2.783968, 0), V(54.283822, 2.863086, 0), V(54.563998, 2.914809, 0), V(54.754705, 2.920665, 0), V(54.8514, 2.923634, 0)], [4, 1, 1, 1, 1, 1, 1, 1, 1, 1, 1, 1, 4], [0, 0.888701115, 1.786444228, 2.72001202, 3.692817113, 4.693886446, 5.687152267, 6.695133018, 7.739871481, 8.800368666, 9.853104506, 10.91144658, 12], False, 3, [1, 1, 1, 1, 1, 1, 1, 1, 1, 1, 1, 1, 1, 1, 1], False), False)
sketch15.addGeometry(Part.BSplineCurve([V(53.762114, -0.547538, 0), V(53.676195, -0.500686, 0), V(53.509833, -0.409968, 0), V(53.289553, -0.243287, 0), V(53.100343, -0.062761, 0), V(52.947404, 0.135422, 0), V(52.827024, 0.345071, 0), V(52.744435, 0.564875, 0), V(52.688562, 0.790757, 0), V(52.683027, 0.945076, 0), V(52.680248, 1.022578, 0)], [4, 1, 1, 1, 1, 1, 1, 1, 4], [0, 1.166880483, 2.259407225, 3.286803203, 4.280235371, 5.237608625, 6.161067461, 7.076446754, 8], False, 3, [1, 1, 1, 1, 1, 1, 1, 1, 1, 1, 1], False), False)
sketch15.addGeometry(Part.BSplineCurve([V(52.300333, -2.577706, 0), V(52.301556, -2.525723, 0), V(52.303974, -2.422985, 0), V(52.320706, -2.2712, 0), V(52.347605, -2.123465, 0), V(52.384138, -1.979233, 0), V(52.433649, -1.839556, 0), V(52.493428, -1.703771, 0), V(52.563134, -1.571725, 0), V(52.643739, -1.442695, 0), V(52.737512, -1.31849, 0), V(52.843692, -1.197002, 0), V(52.964401, -1.080116, 0), V(53.098296, -0.966403, 0), V(53.243848, -0.853847, 0), V(53.404836, -0.748531, 0), V(53.576993, -0.642998, 0), V(53.699348, -0.579904, 0), V(53.762114, -0.547538, 0)], [4, 1, 1, 1, 1, 1, 1, 1, 1, 1, 1, 1, 1, 1, 1, 1, 4], [0, 0.941657376, 1.861047343, 2.762797495, 3.66048619, 4.553285746, 5.444104102, 6.34607688, 7.256116206, 8.197091036, 9.162375105, 10.176350973, 11.237807142, 12.343728897, 13.50695164, 14.721116704, 16], False, 3, [1, 1, 1, 1, 1, 1, 1, 1, 1, 1, 1, 1, 1, 1, 1, 1, 1, 1, 1], False), False)
sketch15.addGeometry(Part.BSplineCurve([V(54.806879, -4.864614, 0), V(54.707367, -4.862174, 0), V(54.513727, -4.857427, 0), V(54.231877, -4.825266, 0), V(53.969149, -4.768903, 0), V(53.724018, -4.691762, 0), V(53.497961, -4.591411, 0), V(53.291622, -4.46651, 0), V(53.102024, -4.322086, 0), V(52.93492, -4.153993, 0), V(52.786566, -3.973954, 0), V(52.656247, -3.788213, 0), V(52.547929, -3.596754, 0), V(52.45622, -3.40243, 0), V(52.386014, -3.202519, 0), V(52.33739, -2.998049, 0), V(52.306509, -2.789377, 0), V(52.3024, -2.648552, 0), V(52.300333, -2.577706, 0)], [4, 1, 1, 1, 1, 1, 1, 1, 1, 1, 1, 1, 1, 1, 1, 1, 4], [0, 1.256902934, 2.445805442, 3.576955095, 4.645999104, 5.686449165, 6.692658513, 7.68621702, 8.689161843, 9.678783111, 10.630372946, 11.551080876, 12.453998257, 13.34127905, 14.221779781, 15.105423033, 16], False, 3, [1, 1, 1, 1, 1, 1, 1, 1, 1, 1, 1, 1, 1, 1, 1, 1, 1, 1, 1], False), False)
sketch15.addGeometry(Part.BSplineCurve([V(56.773233, -4.051359, 0), V(56.714313, -4.116116, 0), V(56.5972, -4.244829, 0), V(56.396576, -4.411942, 0), V(56.176396, -4.552381, 0), V(55.937513, -4.666834, 0), V(55.680564, -4.755915, 0), V(55.405605, -4.819929, 0), V(55.112099, -4.856594, 0), V(54.910369, -4.861895, 0), V(54.806879, -4.864614, 0)], [4, 1, 1, 1, 1, 1, 1, 1, 4], [0, 0.954267603, 1.896743057, 2.838368354, 3.796610408, 4.779680527, 5.799409237, 6.871065594, 8], False, 3, [1, 1, 1, 1, 1, 1, 1, 1, 1, 1, 1], False), False)
sketch15.addGeometry(Part.BSplineCurve([V(57.334201, -2.51686, 0), V(57.332568, -2.588187, 0), V(57.329336, -2.72937, 0), V(57.301184, -2.937748, 0), V(57.259035, -3.140126, 0), V(57.197484, -3.33646, 0), V(57.117657, -3.525668, 0), V(57.019281, -3.70791, 0), V(56.907921, -3.886175, 0), V(56.818487, -3.995859, 0), V(56.773233, -4.051359, 0)], [4, 1, 1, 1, 1, 1, 1, 1, 4], [0, 1.025265484, 2.029385089, 3.018602448, 3.995076438, 4.983346944, 5.966715145, 6.97116228, 8], False, 3, [1, 1, 1, 1, 1, 1, 1, 1, 1, 1, 1], False), False)
sketch15.addGeometry(Part.BSplineCurve([V(56.66935, -2.530217, 0), V(56.667433, -2.479676, 0), V(56.663652, -2.38002, 0), V(56.639656, -2.232347, 0), V(56.597501, -2.089678, 0), V(56.539658, -1.950295, 0), V(56.462652, -1.817024, 0), V(56.371963, -1.686391, 0), V(56.262544, -1.562023, 0), V(56.138904, -1.442954, 0), V(56.004159, -1.332854, 0), V(55.860931, -1.235457, 0), V(55.71032, -1.153432, 0), V(55.552647, -1.086722, 0), V(55.388261, -1.034255, 0), V(55.217284, -0.997603, 0), V(55.039514, -0.974532, 0), V(54.918748, -0.971852, 0), V(54.857336, -0.97049, 0)], [4, 1, 1, 1, 1, 1, 1, 1, 1, 1, 1, 1, 1, 1, 1, 1, 4], [0, 0.917430815, 1.809013306, 2.70690318, 3.612392954, 4.541220862, 5.495268465, 6.494511384, 7.542276156, 8.608045339, 9.649016899, 10.681629292, 11.715607085, 12.752076957, 13.808767841, 14.885711793, 16], False, 3, [1, 1, 1, 1, 1, 1, 1, 1, 1, 1, 1, 1, 1, 1, 1, 1, 1, 1, 1], False), False)
sketch15.addGeometry(Part.BSplineCurve([V(54.814299, -4.104784, 0), V(54.883621, -4.103453, 0), V(55.018681, -4.10086, 0), V(55.215713, -4.07797, 0), V(55.401651, -4.04167, 0), V(55.576134, -3.988873, 0), V(55.741115, -3.92442, 0), V(55.893797, -3.841506, 0), V(56.038108, -3.747204, 0), V(56.166937, -3.635321, 0), V(56.284271, -3.515772, 0), V(56.386576, -3.389217, 0), V(56.475387, -3.259093, 0), V(56.54509, -3.122462, 0), V(56.600814, -2.981943, 0), V(56.640869, -2.836241, 0), V(56.665584, -2.684909, 0), V(56.668083, -2.582253, 0), V(56.66935, -2.530217, 0)], [4, 1, 1, 1, 1, 1, 1, 1, 1, 1, 1, 1, 1, 1, 1, 1, 4], [0, 1.224942928, 2.386581632, 3.501229538, 4.569074225, 5.605009692, 6.626002462, 7.634866581, 8.645888296, 9.63523824, 10.59253846, 11.518950513, 12.414518923, 13.29783783, 14.186679152, 15.080837789, 16], False, 3, [1, 1, 1, 1, 1, 1, 1, 1, 1, 1, 1, 1, 1, 1, 1, 1, 1, 1, 1], False), False)
sketch15.addGeometry(Part.BSplineCurve([V(52.965184, -2.599967, 0), V(52.968069, -2.666496, 0), V(52.973794, -2.798487, 0), V(53.019211, -2.993566, 0), V(53.092099, -3.182417, 0), V(53.193753, -3.363502, 0), V(53.319626, -3.532729, 0), V(53.47441, -3.680237, 0), V(53.648486, -3.811304, 0), V(53.847745, -3.917308, 0), V(54.065399, -4.001964, 0), V(54.301389, -4.060291, 0), V(54.552331, -4.098902, 0), V(54.7256, -4.102793, 0), V(54.814299, -4.104784, 0)], [4, 1, 1, 1, 1, 1, 1, 1, 1, 1, 1, 1, 4], [0, 0.898778495, 1.783155532, 2.693654817, 3.627872908, 4.583023416, 5.533784346, 6.509005473, 7.520592997, 8.575161974, 9.658835044, 10.801527049, 12], False, 3, [1, 1, 1, 1, 1, 1, 1, 1, 1, 1, 1, 1, 1, 1, 1], False), False)
sketch15.addGeometry(Part.BSplineCurve([V(54.857336, -0.97049, 0), V(54.791453, -0.971661, 0), V(54.662207, -0.97396, 0), V(54.472857, -0.99955, 0), V(54.291134, -1.035172, 0), V(54.117652, -1.089212, 0), V(53.952484, -1.159478, 0), V(53.794736, -1.244006, 0), V(53.645614, -1.343925, 0), V(53.507179, -1.457963, 0), V(53.380764, -1.580856, 0), V(53.269855, -1.710951, 0), V(53.175668, -1.84583, 0), V(53.099821, -1.987207, 0), V(53.037566, -2.132088, 0), V(52.996685, -2.284081, 0), V(52.970477, -2.440263, 0), V(52.966958, -2.546435, 0), V(52.965184, -2.599967, 0)], [4, 1, 1, 1, 1, 1, 1, 1, 1, 1, 1, 1, 1, 1, 1, 1, 4], [0, 1.140299081, 2.23698856, 3.303958914, 4.344563908, 5.37730929, 6.408454204, 7.439741482, 8.480804886, 9.510774543, 10.48932336, 11.43758569, 12.353841022, 13.263987381, 14.161954604, 15.073269652, 16], False, 3, [1, 1, 1, 1, 1, 1, 1, 1, 1, 1, 1, 1, 1, 1, 1, 1, 1, 1, 1], False), False)
sketch15.addGeometry(Part.BSplineCurve([V(56.289436, 1.02703, 0), V(56.28831, 1.062226, 0), V(56.286075, 1.132085, 0), V(56.26766, 1.235248, 0), V(56.237231, 1.336064, 0), V(56.196035, 1.435366, 0), V(56.141827, 1.53176, 0), V(56.077556, 1.626763, 0), V(55.999484, 1.718236, 0), V(55.911862, 1.808312, 0), V(55.812494, 1.891675, 0), V(55.701572, 1.964985, 0), V(55.579665, 2.027241, 0), V(55.446771, 2.077806, 0), V(55.303377, 2.115784, 0), V(55.150146, 2.144224, 0), V(54.985798, 2.160254, 0), V(54.872705, 2.162596, 0), V(54.814299, 2.163805, 0)], [4, 1, 1, 1, 1, 1, 1, 1, 1, 1, 1, 1, 1, 1, 1, 1, 4], [0, 0.814439003, 1.616544685, 2.417341072, 3.248991801, 4.09997495, 4.973547432, 5.9003056, 6.880240646, 7.880314356, 8.896779544, 9.951930927, 11.043077905, 12.18215768, 13.381699519, 14.647792085, 16], False, 3, [1, 1, 1, 1, 1, 1, 1, 1, 1, 1, 1, 1, 1, 1, 1, 1, 1, 1, 1], False), False)
sketch15.addGeometry(Part.BSplineCurve([V(54.841012, -0.210661, 0), V(54.903983, -0.208813, 0), V(55.029303, -0.205136, 0), V(55.214044, -0.170949, 0), V(55.39367, -0.117174, 0), V(55.566261, -0.043598, 0), V(55.727349, 0.048747, 0), V(55.870944, 0.159307, 0), V(55.99582, 0.285528, 0), V(56.100681, 0.425446, 0), V(56.181982, 0.574357, 0), V(56.245274, 0.723794, 0), V(56.282234, 0.875352, 0), V(56.287055, 0.976882, 0), V(56.289436, 1.02703, 0)], [4, 1, 1, 1, 1, 1, 1, 1, 1, 1, 1, 1, 4], [0, 1.076279235, 2.141928126, 3.20205304, 4.278698113, 5.344010996, 6.36967002, 7.368914609, 8.37248503, 9.349703398, 10.264243087, 11.142681841, 12], False, 3, [1, 1, 1, 1, 1, 1, 1, 1, 1, 1, 1, 1, 1, 1, 1], False), False)
sketch15.addGeometry(Part.BSplineCurve([V(53.345098, 1.012189, 0), V(53.346553, 0.973496, 0), V(53.349428, 0.897031, 0), V(53.371664, 0.784116, 0), V(53.404804, 0.673157, 0), V(53.456982, 0.566792, 0), V(53.519564, 0.461333, 0), V(53.596804, 0.359414, 0), V(53.688856, 0.260681, 0), V(53.792631, 0.165974, 0), V(53.905685, 0.077289, 0), V(54.025455, 0.000299, 0), V(54.150436, -0.06412, 0), V(54.279346, -0.117734, 0), V(54.413497, -0.159411, 0), V(54.552067, -0.188978, 0), V(54.695081, -0.207355, 0), V(54.791983, -0.20955, 0), V(54.841012, -0.210661, 0)], [4, 1, 1, 1, 1, 1, 1, 1, 1, 1, 1, 1, 1, 1, 1, 1, 4], [0, 0.873023192, 1.725219244, 2.590779336, 3.480155217, 4.391973325, 5.357036234, 6.360879153, 7.436073238, 8.526419356, 9.601555421, 10.645666583, 11.697338044, 12.750135903, 13.812665442, 14.89329948, 16], False, 3, [1, 1, 1, 1, 1, 1, 1, 1, 1, 1, 1, 1, 1, 1, 1, 1, 1, 1, 1], False), False)
sketch15.addGeometry(Part.BSplineCurve([V(54.814299, 2.163805, 0), V(54.762333, 2.162426, 0), V(54.660665, 2.159729, 0), V(54.511591, 2.145635, 0), V(54.369833, 2.118217, 0), V(54.233909, 2.081728, 0), V(54.105684, 2.032435, 0), V(53.983416, 1.974449, 0), V(53.869185, 1.903951, 0), V(53.761614, 1.82487, 0), V(53.664775, 1.73789, 0), V(53.578828, 1.647268, 0), V(53.507437, 1.551223, 0), V(53.446813, 1.452146, 0), V(53.402826, 1.347094, 0), V(53.369881, 1.23929, 0), V(53.347611, 1.12737, 0), V(53.345942, 1.050881, 0), V(53.345098, 1.012189, 0)], [4, 1, 1, 1, 1, 1, 1, 1, 1, 1, 1, 1, 1, 1, 1, 1, 4], [0, 1.203892937, 2.355340988, 3.463153438, 4.544400666, 5.610487187, 6.640501085, 7.674077295, 8.714426146, 9.728707835, 10.68524104, 11.601827946, 12.495867327, 13.368432065, 14.231010473, 15.105153427, 16], False, 3, [1, 1, 1, 1, 1, 1, 1, 1, 1, 1, 1, 1, 1, 1, 1, 1, 1, 1, 1], False), False)
add_polygon(sketch15, [(60.943389, 2.733677), (59.573619, 2.733677), (59.138795, 1.973848), (60.278538, 1.973848), (60.278538, -4.674656), (60.943389, -4.674656)])
add_polygon(sketch15, [(66.642107, 2.733677), (65.272337, 2.733677), (64.837513, 1.973848), (65.977256, 1.973848), (65.977256, -4.674656), (66.642107, -4.674656)])
sketch15.addConstraint(Sketcher.Constraint("Block", 6))
sketch15.addConstraint(Sketcher.Constraint("Block", 7))
sketch15.addConstraint(Sketcher.Constraint("Block", 8))
sketch15.addConstraint(Sketcher.Constraint("Block", 9))
sketch15.addConstraint(Sketcher.Constraint("Block", 10))
sketch15.addConstraint(Sketcher.Constraint("Block", 11))
sketch15.addConstraint(Sketcher.Constraint("Block", 12))
sketch15.addConstraint(Sketcher.Constraint("Block", 13))
sketch15.addConstraint(Sketcher.Constraint("Block", 14))
sketch15.addConstraint(Sketcher.Constraint("Block", 15))
sketch15.addConstraint(Sketcher.Constraint("Block", 16))
sketch15.addConstraint(Sketcher.Constraint("Block", 17))
sketch15.addConstraint(Sketcher.Constraint("Block", 18))
sketch15.addConstraint(Sketcher.Constraint("Block", 19))
sketch15.addConstraint(Sketcher.Constraint("Block", 20))
sketch15.addConstraint(Sketcher.Constraint("Block", 21))
sketch15.addConstraint(Sketcher.Constraint("Block", 22))
sketch15.addConstraint(Sketcher.Constraint("Horizontal", 0))
sketch15.addConstraint(Sketcher.Constraint("Horizontal", 2))
sketch15.addConstraint(Sketcher.Constraint("Vertical", 3))
sketch15.addConstraint(Sketcher.Constraint("Horizontal", 4))
sketch15.addConstraint(Sketcher.Constraint("Vertical", 5))
sketch15.addConstraint(Sketcher.Constraint("Horizontal", 23))
sketch15.addConstraint(Sketcher.Constraint("Horizontal", 25))
sketch15.addConstraint(Sketcher.Constraint("Vertical", 26))
sketch15.addConstraint(Sketcher.Constraint("Horizontal", 27))
sketch15.addConstraint(Sketcher.Constraint("Vertical", 28))
sketch15.addConstraint(Sketcher.Constraint("Horizontal", 29))
sketch15.addConstraint(Sketcher.Constraint("Horizontal", 31))
sketch15.addConstraint(Sketcher.Constraint("Vertical", 32))
sketch15.addConstraint(Sketcher.Constraint("Horizontal", 33))
sketch15.addConstraint(Sketcher.Constraint("Vertical", 34))
sketch15.addConstraint(Sketcher.Constraint("Parallel", 1, 24))
sketch15.addConstraint(Sketcher.Constraint("Parallel", 24, 30))
sketch15.addConstraint(Sketcher.Constraint("Horizontal", 5, 2, 23, 2))
sketch15.addConstraint(Sketcher.Constraint("Horizontal", 2, 2, 24, 2))
sketch15.addConstraint(Sketcher.Constraint("Horizontal", 4, 2, 26, 2))
sketch15.addConstraint(Sketcher.Constraint("Horizontal", 28, 2, 29, 2))
sketch15.addConstraint(Sketcher.Constraint("Horizontal", 25, 2, 30, 2))
sketch15.addConstraint(Sketcher.Constraint("Horizontal", 27, 2, 32, 2))
sketch15.addConstraint(Sketcher.Constraint("Equal", 0, 23))
sketch15.addConstraint(Sketcher.Constraint("Equal", 2, 25))
sketch15.addConstraint(Sketcher.Constraint("Equal", 23, 29))
sketch15.addConstraint(Sketcher.Constraint("Equal", 25, 31))
sketch15.addConstraint(Sketcher.Constraint("DistanceX", 0, 2, 0, 1, 1.36977))
sketch15.addConstraint(Sketcher.Constraint("DistanceX", 4, 1, 4, 2, 0.66485))
sketch15.addConstraint(Sketcher.Constraint("DistanceX", 25, 2, 29, 2, 4.993798))
sketch15.addConstraint(Sketcher.Constraint("Distance", 1, 0.87545))
sketch15.addConstraint(Sketcher.Constraint("DistanceX", 2, 1, 2, 2, 1.139744))
sketch15.addConstraint(Sketcher.Constraint("DistanceY", 3, 2, 3, 1, 6.648504))
sketch15.addConstraint(Sketcher.Constraint("DistanceX", -1, 1, 1, 2, 47.741359))
sketch15.addConstraint(Sketcher.Constraint("DistanceY", -1, 1, 1, 2, 1.973848))
sketch15.addConstraint(Sketcher.Constraint("DistanceX", -1, 1, 23, 2, 59.573619))
pocket13 = body.newObject("PartDesign::Pocket", "Pocket012")
pocket13.Profile = sketch15
pocket13.setExpression("Length", "Params.pocket13_length")

doc.recompute()
